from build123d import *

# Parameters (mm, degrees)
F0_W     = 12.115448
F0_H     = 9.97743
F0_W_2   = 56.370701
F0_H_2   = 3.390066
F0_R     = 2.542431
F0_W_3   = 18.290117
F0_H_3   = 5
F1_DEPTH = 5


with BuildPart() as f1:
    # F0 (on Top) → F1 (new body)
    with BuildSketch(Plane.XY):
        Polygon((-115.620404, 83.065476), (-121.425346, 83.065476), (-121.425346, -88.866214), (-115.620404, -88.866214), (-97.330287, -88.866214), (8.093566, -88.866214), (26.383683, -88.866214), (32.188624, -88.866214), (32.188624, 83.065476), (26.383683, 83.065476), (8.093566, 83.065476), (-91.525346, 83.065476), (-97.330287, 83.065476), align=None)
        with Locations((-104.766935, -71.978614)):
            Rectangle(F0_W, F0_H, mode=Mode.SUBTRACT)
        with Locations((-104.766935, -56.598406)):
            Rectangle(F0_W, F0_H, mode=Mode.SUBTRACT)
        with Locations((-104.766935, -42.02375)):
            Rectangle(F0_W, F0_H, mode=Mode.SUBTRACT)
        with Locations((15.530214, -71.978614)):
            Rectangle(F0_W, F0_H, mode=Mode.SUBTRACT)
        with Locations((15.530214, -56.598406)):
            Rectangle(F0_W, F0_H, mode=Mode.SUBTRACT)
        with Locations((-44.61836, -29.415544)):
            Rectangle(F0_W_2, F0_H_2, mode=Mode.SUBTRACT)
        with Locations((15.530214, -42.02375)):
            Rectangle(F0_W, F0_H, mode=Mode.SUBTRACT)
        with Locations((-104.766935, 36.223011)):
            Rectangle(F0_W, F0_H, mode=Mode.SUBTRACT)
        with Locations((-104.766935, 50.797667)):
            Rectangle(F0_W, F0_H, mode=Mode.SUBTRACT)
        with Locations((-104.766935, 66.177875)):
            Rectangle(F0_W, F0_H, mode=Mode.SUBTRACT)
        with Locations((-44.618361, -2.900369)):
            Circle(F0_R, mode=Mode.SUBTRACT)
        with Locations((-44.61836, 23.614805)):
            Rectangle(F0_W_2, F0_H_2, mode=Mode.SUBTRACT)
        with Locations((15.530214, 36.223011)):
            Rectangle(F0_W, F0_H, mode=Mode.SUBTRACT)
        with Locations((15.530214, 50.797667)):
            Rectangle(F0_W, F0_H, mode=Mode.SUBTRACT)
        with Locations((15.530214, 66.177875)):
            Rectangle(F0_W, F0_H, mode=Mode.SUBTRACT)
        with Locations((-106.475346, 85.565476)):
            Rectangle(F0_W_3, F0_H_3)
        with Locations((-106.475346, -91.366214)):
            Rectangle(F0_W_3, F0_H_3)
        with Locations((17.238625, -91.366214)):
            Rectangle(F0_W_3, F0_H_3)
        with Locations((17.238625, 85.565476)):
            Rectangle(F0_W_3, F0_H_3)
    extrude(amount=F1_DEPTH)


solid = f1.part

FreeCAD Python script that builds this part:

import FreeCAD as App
import Part
import Sketcher
Q = App.Units.Quantity


def add_polygon(sketch, points):
    """Adds a closed chain of lines whose ends are joined by coincident constraints."""
    first, n = sketch.GeometryCount, len(points)
    for a, b in zip(points, points[1:] + points[:1]):
        sketch.addGeometry(Part.LineSegment(App.Vector(*a, 0), App.Vector(*b, 0)), False)
    for i in range(n):
        sketch.addConstraint(Sketcher.Constraint("Coincident", first + i, 2, first + (i + 1) % n, 1))

doc = App.newDocument("Part")
body = doc.addObject("PartDesign::Body", "Body")

# Sketch on XY plane
sketch1 = doc.addObject("Sketcher::SketchObject", "Sketch")
body.addObject(sketch1)
sketch1.AttachmentSupport = (doc.XY_Plane, [""])
sketch1.MapMode = "FlatFace"
add_polygon(sketch1, [(-121.4, 83.1), (-121.4, -88.9), (-115.6, -88.9), (-115.6, -93.9), (-97.3, -93.9), (-97.3, -88.9), (8.1, -88.9), (8.1, -93.9), (26.4, -93.9), (26.4, -88.9), (32.2, -88.9), (32.2, 83.1), (26.4, 83.1), (26.4, 88.1), (8.1, 88.1), (8.1, 83.1), (-97.3, 83.1), (-97.3, 88.1), (-115.6, 88.1), (-115.6, 83.1)])  # lines 0-19
add_polygon(sketch1, [(-98.7, -77), (-110.8, -77), (-110.8, -67), (-98.7, -67)])  # lines 20-23
add_polygon(sketch1, [(-98.7, -61.6), (-110.8, -61.6), (-110.8, -51.6), (-98.7, -51.6)])  # lines 24-27
add_polygon(sketch1, [(-98.7, -47), (-110.8, -47), (-110.8, -37), (-98.7, -37)])  # lines 28-31
add_polygon(sketch1, [(21.6, -77), (9.5, -77), (9.5, -67), (21.6, -67)])  # lines 32-35
add_polygon(sketch1, [(21.6, -61.6), (9.5, -61.6), (9.5, -51.6), (21.6, -51.6)])  # lines 36-39
add_polygon(sketch1, [(21.6, -47), (9.5, -47), (9.5, -37), (21.6, -37)])  # lines 40-43
add_polygon(sketch1, [(-16.4, -31.1), (-72.8, -31.1), (-72.8, -27.7), (-16.4, -27.7)])  # lines 44-47
sketch1.addGeometry(Part.Circle(App.Vector(-44.6, -2.9, 0), App.Vector(0, 0, 1), 2.5), False)  # 48
add_polygon(sketch1, [(-98.7, 31.2), (-110.8, 31.2), (-110.8, 41.2), (-98.7, 41.2)])  # lines 49-52
add_polygon(sketch1, [(-98.7, 45.8), (-110.8, 45.8), (-110.8, 55.8), (-98.7, 55.8)])  # lines 53-56
add_polygon(sketch1, [(-98.7, 61.2), (-110.8, 61.2), (-110.8, 71.2), (-98.7, 71.2)])  # lines 57-60
add_polygon(sketch1, [(-16.4, 21.9), (-72.8, 21.9), (-72.8, 25.3), (-16.4, 25.3)])  # lines 61-64
add_polygon(sketch1, [(21.6, 31.2), (9.5, 31.2), (9.5, 41.2), (21.6, 41.2)])  # lines 65-68
add_polygon(sketch1, [(21.6, 45.8), (9.5, 45.8), (9.5, 55.8), (21.6, 55.8)])  # lines 69-72
add_polygon(sketch1, [(21.6, 61.2), (9.5, 61.2), (9.5, 71.2), (21.6, 71.2)])  # lines 73-76
sketch1.addConstraint([
    Sketcher.Constraint("Vertical", 0),
    Sketcher.Constraint("Horizontal", 1),
    Sketcher.Constraint("Vertical", 2),
    Sketcher.Constraint("Horizontal", 3),
    Sketcher.Constraint("Vertical", 4),
    Sketcher.Constraint("Horizontal", 5),
    Sketcher.Constraint("Vertical", 6),
    Sketcher.Constraint("Horizontal", 7),
    Sketcher.Constraint("Vertical", 8),
    Sketcher.Constraint("Horizontal", 9),
    Sketcher.Constraint("Vertical", 10),
    Sketcher.Constraint("Horizontal", 11),
    Sketcher.Constraint("Vertical", 12),
    Sketcher.Constraint("Horizontal", 13),
    Sketcher.Constraint("Vertical", 14),
    Sketcher.Constraint("Horizontal", 15),
    Sketcher.Constraint("Vertical", 16),
    Sketcher.Constraint("Horizontal", 17),
    Sketcher.Constraint("Vertical", 18),
    Sketcher.Constraint("Horizontal", 19),
    Sketcher.Constraint("Horizontal", 20),
    Sketcher.Constraint("Vertical", 21),
    Sketcher.Constraint("Horizontal", 22),
    Sketcher.Constraint("Vertical", 23),
    Sketcher.Constraint("Horizontal", 24),
    Sketcher.Constraint("Vertical", 25),
    Sketcher.Constraint("Horizontal", 26),
    Sketcher.Constraint("Vertical", 27),
    Sketcher.Constraint("Horizontal", 28),
    Sketcher.Constraint("Vertical", 29),
    Sketcher.Constraint("Horizontal", 30),
    Sketcher.Constraint("Vertical", 31),
    Sketcher.Constraint("Horizontal", 32),
    Sketcher.Constraint("Vertical", 33),
    Sketcher.Constraint("Horizontal", 34),
    Sketcher.Constraint("Vertical", 35),
    Sketcher.Constraint("Horizontal", 36),
    Sketcher.Constraint("Vertical", 37),
    Sketcher.Constraint("Horizontal", 38),
    Sketcher.Constraint("Vertical", 39),
    Sketcher.Constraint("Horizontal", 40),
    Sketcher.Constraint("Vertical", 41),
    Sketcher.Constraint("Horizontal", 42),
    Sketcher.Constraint("Vertical", 43),
    Sketcher.Constraint("Horizontal", 44),
    Sketcher.Constraint("Vertical", 45),
    Sketcher.Constraint("Horizontal", 46),
    Sketcher.Constraint("Vertical", 47),
    Sketcher.Constraint("Horizontal", 49),
    Sketcher.Constraint("Vertical", 50),
    Sketcher.Constraint("Horizontal", 51),
    Sketcher.Constraint("Vertical", 52),
    Sketcher.Constraint("Horizontal", 53),
    Sketcher.Constraint("Vertical", 54),
    Sketcher.Constraint("Horizontal", 55),
    Sketcher.Constraint("Vertical", 56),
    Sketcher.Constraint("Horizontal", 57),
    Sketcher.Constraint("Vertical", 58),
    Sketcher.Constraint("Horizontal", 59),
    Sketcher.Constraint("Vertical", 60),
    Sketcher.Constraint("Horizontal", 61),
    Sketcher.Constraint("Vertical", 62),
    Sketcher.Constraint("Horizontal", 63),
    Sketcher.Constraint("Vertical", 64),
    Sketcher.Constraint("Horizontal", 65),
    Sketcher.Constraint("Vertical", 66),
    Sketcher.Constraint("Horizontal", 67),
    Sketcher.Constraint("Vertical", 68),
    Sketcher.Constraint("Horizontal", 69),
    Sketcher.Constraint("Vertical", 70),
    Sketcher.Constraint("Horizontal", 71),
    Sketcher.Constraint("Vertical", 72),
    Sketcher.Constraint("Horizontal", 73),
    Sketcher.Constraint("Vertical", 74),
    Sketcher.Constraint("Horizontal", 75),
    Sketcher.Constraint("Vertical", 76),
    Sketcher.Constraint("Horizontal", 1, 2, 4, 2),
    Sketcher.Constraint("Horizontal", 3, 2, 6, 2),
    Sketcher.Constraint("Horizontal", 5, 2, 8, 2),
    Sketcher.Constraint("Horizontal", 11, 2, 14, 2),
    Sketcher.Constraint("Horizontal", 13, 2, 16, 2),
    Sketcher.Constraint("Horizontal", 15, 2, 18, 2),
    Sketcher.Constraint("Horizontal", 23, 2, 32, 2),
    Sketcher.Constraint("Horizontal", 22, 2, 33, 2),
    Sketcher.Constraint("Horizontal", 27, 2, 36, 2),
    Sketcher.Constraint("Horizontal", 26, 2, 37, 2),
    Sketcher.Constraint("Horizontal", 31, 2, 40, 2),
    Sketcher.Constraint("Horizontal", 30, 2, 41, 2),
    Sketcher.Constraint("Horizontal", 52, 2, 65, 2),
    Sketcher.Constraint("Horizontal", 51, 2, 66, 2),
    Sketcher.Constraint("Horizontal", 56, 2, 69, 2),
    Sketcher.Constraint("Horizontal", 55, 2, 70, 2),
    Sketcher.Constraint("Horizontal", 60, 2, 73, 2),
    Sketcher.Constraint("Horizontal", 59, 2, 74, 2),
    Sketcher.Constraint("Vertical", 8, 2, 11, 2),
    Sketcher.Constraint("Vertical", 6, 2, 13, 2),
    Sketcher.Constraint("Vertical", 4, 2, 15, 2),
    Sketcher.Constraint("Vertical", 2, 2, 17, 2),
    Sketcher.Constraint("Vertical", 21, 2, 24, 2),
    Sketcher.Constraint("Vertical", 23, 2, 26, 2),
    Sketcher.Constraint("Vertical", 25, 2, 28, 2),
    Sketcher.Constraint("Vertical", 27, 2, 30, 2),
    Sketcher.Constraint("Vertical", 33, 2, 36, 2),
    Sketcher.Constraint("Vertical", 35, 2, 38, 2),
    Sketcher.Constraint("Vertical", 37, 2, 40, 2),
    Sketcher.Constraint("Vertical", 39, 2, 42, 2),
    Sketcher.Constraint("Vertical", 29, 2, 49, 2),
    Sketcher.Constraint("Vertical", 31, 2, 51, 2),
    Sketcher.Constraint("Vertical", 50, 2, 53, 2),
    Sketcher.Constraint("Vertical", 52, 2, 55, 2),
    Sketcher.Constraint("Vertical", 54, 2, 57, 2),
    Sketcher.Constraint("Vertical", 56, 2, 59, 2),
    Sketcher.Constraint("Vertical", 45, 2, 61, 2),
    Sketcher.Constraint("Vertical", 47, 2, 63, 2),
    Sketcher.Constraint("Vertical", 41, 2, 65, 2),
    Sketcher.Constraint("Vertical", 43, 2, 67, 2),
    Sketcher.Constraint("Vertical", 66, 2, 69, 2),
    Sketcher.Constraint("Vertical", 68, 2, 71, 2),
    Sketcher.Constraint("Vertical", 70, 2, 73, 2),
    Sketcher.Constraint("Vertical", 72, 2, 75, 2),
    Sketcher.Constraint("Equal", 3, 7),
    Sketcher.Constraint("Equal", 1, 9),
    Sketcher.Constraint("Equal", 30, 32),
    Sketcher.Constraint("Equal", 8, 12),
    Sketcher.Constraint("Equal", 23, 25),
    Sketcher.Constraint("Equal", 27, 29),
    Sketcher.Constraint("Equal", 43, 50),
    Sketcher.Constraint("Equal", 52, 54),
    Sketcher.Constraint("Equal", 56, 58),
    Sketcher.Constraint("Equal", 47, 62),
    Sketcher.Constraint("DistanceY", 2, 2, 2, 1, Q("5 mm")),
    Sketcher.Constraint("Diameter", 48, Q("5.084862 mm")),
    Sketcher.Constraint("DistanceX", 44, 2, 44, 1, Q("56.370701 mm")),
    Sketcher.Constraint("DistanceX", 1, 1, 1, 2, Q("5.804941 mm")),
    Sketcher.Constraint("DistanceX", 20, 2, 20, 1, Q("12.115448 mm")),
    Sketcher.Constraint("DistanceY", 0, 2, 0, 1, Q("171.93169 mm")),
    Sketcher.Constraint("DistanceY", 21, 1, 21, 2, Q("9.97743 mm")),
    Sketcher.Constraint("DistanceY", 21, 2, -1, 1, Q("66.989899 mm")),
    Sketcher.Constraint("DistanceX", 3, 1, 3, 2, Q("18.290117 mm")),
    Sketcher.Constraint("DistanceX", 5, 1, 5, 2, Q("105.423854 mm")),
    Sketcher.Constraint("DistanceY", 45, 1, 45, 2, Q("3.390066 mm")),
    Sketcher.Constraint("DistanceX", 48, 3, -1, 1, Q("44.618361 mm")),
    Sketcher.Constraint("DistanceY", 48, 3, -1, 1, Q("2.900369 mm")),
    Sketcher.Constraint("DistanceX", 20, 2, -1, 1, Q("110.824659 mm")),
    Sketcher.Constraint("DistanceY", 24, 2, -1, 1, Q("61.587121 mm")),
    Sketcher.Constraint("DistanceX", -1, 1, 32, 2, Q("9.47249 mm")),
    Sketcher.Constraint("DistanceX", 44, 2, -1, 1, Q("72.80371 mm")),
    Sketcher.Constraint("DistanceY", 45, 2, -1, 1, Q("27.720511 mm")),
    Sketcher.Constraint("DistanceY", -1, 1, 53, 2, Q("45.808952 mm")),
    Sketcher.Constraint("DistanceY", -1, 1, 57, 2, Q("61.18916 mm")),
    Sketcher.Constraint("DistanceY", -1, 1, 61, 2, Q("21.919772 mm")),
    Sketcher.Constraint("DistanceX", 0, 2, -1, 1, Q("121.425346 mm")),
    Sketcher.Constraint("DistanceY", 0, 2, -1, 1, Q("88.866214 mm")),
    Sketcher.Constraint("DistanceY", 28, 2, -1, 1, Q("47.012465 mm")),
    Sketcher.Constraint("DistanceY", -1, 1, 49, 2, Q("31.234296 mm")),
])
pad1 = doc.addObject("PartDesign::Pad", "Pad")
body.addObject(pad1)
pad1.Profile = sketch1
pad1.Length = 5

doc.recompute()
